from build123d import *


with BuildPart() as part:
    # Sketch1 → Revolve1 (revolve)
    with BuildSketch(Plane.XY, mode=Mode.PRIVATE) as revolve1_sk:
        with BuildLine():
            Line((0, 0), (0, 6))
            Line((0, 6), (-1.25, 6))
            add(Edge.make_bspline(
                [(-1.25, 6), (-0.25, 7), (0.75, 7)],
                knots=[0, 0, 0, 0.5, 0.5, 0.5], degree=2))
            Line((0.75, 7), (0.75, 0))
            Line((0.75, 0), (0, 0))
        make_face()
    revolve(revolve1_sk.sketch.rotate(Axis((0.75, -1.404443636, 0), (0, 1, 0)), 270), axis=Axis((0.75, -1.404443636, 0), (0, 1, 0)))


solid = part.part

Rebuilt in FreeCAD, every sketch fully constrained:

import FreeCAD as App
import Part
import Sketcher

doc = App.newDocument("Part")
body = doc.addObject("PartDesign::Body", "Body")

sketch1 = doc.addObject("Sketcher::SketchObject", "Sketch")
body.addObject(sketch1)
sketch1.AttachmentSupport = (doc.XY_Plane, [""])
sketch1.MapMode = "FlatFace"
sketch1.addGeometry([
    Part.LineSegment(App.Vector(0, 6, 0), App.Vector(0, 0, 0)),
    Part.LineSegment(App.Vector(0, 0, 0), App.Vector(0.75, 0, 0)),
    Part.LineSegment(App.Vector(0.75, 0, 0), App.Vector(0.75, 7, 0)),
    Part.BSplineCurve([App.Vector(-1.25, 6, 0), App.Vector(-0.25, 7, 0), App.Vector(0.75, 7, 0)], [3, 3], [0, 0.5], False, 2, [1, 1, 1], False),
    Part.LineSegment(App.Vector(-1.25, 6, 0), App.Vector(0, 6, 0)),
], False)
sketch1.addGeometry(Part.LineSegment(App.Vector(0.75, 0, 0), App.Vector(0.75, 7, 0)), True)
sketch1.addConstraint([
    Sketcher.Constraint("Block", 3),
    Sketcher.Constraint("Coincident", 0, 2, 1, 1),
    Sketcher.Constraint("Coincident", 1, 2, 2, 1),
    Sketcher.Constraint("Coincident", 2, 2, 3, 2),
    Sketcher.Constraint("Coincident", 3, 1, 4, 1),
    Sketcher.Constraint("Coincident", 4, 2, 0, 1),
    Sketcher.Constraint("Vertical", 0),
    Sketcher.Constraint("Horizontal", 1),
    Sketcher.Constraint("Vertical", 2),
    Sketcher.Constraint("Horizontal", 4),
    Sketcher.Constraint("Vertical", 5),
    Sketcher.Constraint("Coincident", 0, 2, -1, 1),
    Sketcher.Constraint("Coincident", 5, 1, 1, 2),
    Sketcher.Constraint("Equal", 2, 5),
])
revolution = doc.addObject("PartDesign::Revolution", "Revolution")
body.addObject(revolution)
revolution.Profile = sketch1
revolution.ReferenceAxis = (sketch1, ["Axis0"])
revolution.Angle = 360

doc.recompute()
